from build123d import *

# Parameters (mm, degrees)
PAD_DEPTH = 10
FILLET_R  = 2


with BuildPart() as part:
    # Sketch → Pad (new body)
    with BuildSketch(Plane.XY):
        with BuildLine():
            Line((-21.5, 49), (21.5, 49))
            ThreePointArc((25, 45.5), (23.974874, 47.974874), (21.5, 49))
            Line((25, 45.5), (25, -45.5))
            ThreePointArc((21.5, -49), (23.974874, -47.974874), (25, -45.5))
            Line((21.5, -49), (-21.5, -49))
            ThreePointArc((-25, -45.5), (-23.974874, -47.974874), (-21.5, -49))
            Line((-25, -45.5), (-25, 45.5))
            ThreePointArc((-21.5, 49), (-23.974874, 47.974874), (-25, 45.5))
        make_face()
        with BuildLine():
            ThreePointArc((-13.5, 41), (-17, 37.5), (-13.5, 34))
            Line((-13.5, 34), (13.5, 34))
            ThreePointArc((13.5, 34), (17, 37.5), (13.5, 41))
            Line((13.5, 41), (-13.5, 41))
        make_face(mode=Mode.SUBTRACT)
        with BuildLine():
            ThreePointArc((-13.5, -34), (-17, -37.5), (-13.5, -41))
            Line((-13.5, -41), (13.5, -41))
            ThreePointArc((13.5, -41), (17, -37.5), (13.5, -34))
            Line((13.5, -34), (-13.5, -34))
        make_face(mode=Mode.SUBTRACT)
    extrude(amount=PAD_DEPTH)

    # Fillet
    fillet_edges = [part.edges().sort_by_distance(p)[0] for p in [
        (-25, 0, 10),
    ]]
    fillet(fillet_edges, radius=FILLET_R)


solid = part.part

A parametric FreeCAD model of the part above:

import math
import FreeCAD as App
import Part
import Sketcher
from FreeCAD import Vector
Q = App.Units.Quantity


def edges_at(feature, points):
    """Names of the edges that pass closest to the given points."""
    edges = feature.Shape.Edges
    near = lambda p: min(range(len(edges)), key=lambda i: edges[i].distToShape(Part.Vertex(*p))[0])
    return sorted({f"Edge{near(p) + 1}" for p in points})

doc = App.newDocument("Part")
body = doc.addObject("PartDesign::Body", "Body")

sketch1 = body.newObject("Sketcher::SketchObject", "Sketch")
sketch1.AttachmentSupport = (doc.getObject("XY_Plane"), [""])
sketch1.MapMode = "FlatFace"
sketch1.addGeometry(Part.LineSegment(Vector(21.5, 49, 0), Vector(-21.5, 49, 0)), False)
sketch1.addGeometry(Part.ArcOfCircle(Part.Circle(Vector(-21.5, 45.5, 0), Vector(0, 0, 1), 3.5), math.radians(90), math.radians(180)), False)
sketch1.addGeometry(Part.LineSegment(Vector(-25, 45.5, 0), Vector(-25, -45.5, 0)), False)
sketch1.addGeometry(Part.ArcOfCircle(Part.Circle(Vector(-21.5, -45.5, 0), Vector(0, 0, 1), 3.5), math.radians(180), math.radians(270)), False)
sketch1.addGeometry(Part.LineSegment(Vector(-21.5, -49, 0), Vector(21.5, -49, 0)), False)
sketch1.addGeometry(Part.ArcOfCircle(Part.Circle(Vector(21.5, -45.5, 0), Vector(0, 0, 1), 3.5), math.radians(-90), math.radians(0)), False)
sketch1.addGeometry(Part.LineSegment(Vector(25, -45.5, 0), Vector(25, 45.5, 0)), False)
sketch1.addGeometry(Part.ArcOfCircle(Part.Circle(Vector(21.5, 45.5, 0), Vector(0, 0, 1), 3.5), math.radians(0), math.radians(90)), False)
sketch1.addGeometry(Part.LineSegment(Vector(-13.5, -34, 0), Vector(13.5, -34, 0)), False)
sketch1.addGeometry(Part.ArcOfCircle(Part.Circle(Vector(13.5, -37.5, 0), Vector(0, 0, 1), 3.5), math.radians(-90), math.radians(90)), False)
sketch1.addGeometry(Part.LineSegment(Vector(13.5, -41, 0), Vector(-13.5, -41, 0)), False)
sketch1.addGeometry(Part.ArcOfCircle(Part.Circle(Vector(-13.5, -37.5, 0), Vector(0, 0, 1), 3.5), math.radians(90), math.radians(270)), False)
sketch1.addGeometry(Part.LineSegment(Vector(-13.5, 41, 0), Vector(13.5, 41, 0)), False)
sketch1.addGeometry(Part.ArcOfCircle(Part.Circle(Vector(13.5, 37.5, 0), Vector(0, 0, 1), 3.5), math.radians(-90), math.radians(90)), False)
sketch1.addGeometry(Part.LineSegment(Vector(13.5, 34, 0), Vector(-13.5, 34, 0)), False)
sketch1.addGeometry(Part.ArcOfCircle(Part.Circle(Vector(-13.5, 37.5, 0), Vector(0, 0, 1), 3.5), math.radians(90), math.radians(270)), False)
sketch1.addConstraint(Sketcher.Constraint("Tangent", 0, 2, 1, 1))
sketch1.addConstraint(Sketcher.Constraint("Tangent", 1, 2, 2, 1))
sketch1.addConstraint(Sketcher.Constraint("Tangent", 2, 2, 3, 1))
sketch1.addConstraint(Sketcher.Constraint("Tangent", 3, 2, 4, 1))
sketch1.addConstraint(Sketcher.Constraint("Tangent", 4, 2, 5, 1))
sketch1.addConstraint(Sketcher.Constraint("Tangent", 5, 2, 6, 1))
sketch1.addConstraint(Sketcher.Constraint("Tangent", 6, 2, 7, 1))
sketch1.addConstraint(Sketcher.Constraint("Tangent", 7, 2, 0, 1))
sketch1.addConstraint(Sketcher.Constraint("Tangent", 8, 2, 9, 2))
sketch1.addConstraint(Sketcher.Constraint("Tangent", 9, 1, 10, 1))
sketch1.addConstraint(Sketcher.Constraint("Tangent", 10, 2, 11, 2))
sketch1.addConstraint(Sketcher.Constraint("Tangent", 11, 1, 8, 1))
sketch1.addConstraint(Sketcher.Constraint("Tangent", 12, 2, 13, 2))
sketch1.addConstraint(Sketcher.Constraint("Tangent", 13, 1, 14, 1))
sketch1.addConstraint(Sketcher.Constraint("Tangent", 14, 2, 15, 2))
sketch1.addConstraint(Sketcher.Constraint("Tangent", 15, 1, 12, 1))
sketch1.addConstraint(Sketcher.Constraint("Horizontal", 0))
sketch1.addConstraint(Sketcher.Constraint("Vertical", 2))
sketch1.addConstraint(Sketcher.Constraint("Horizontal", 4))
sketch1.addConstraint(Sketcher.Constraint("Vertical", 6))
sketch1.addConstraint(Sketcher.Constraint("Horizontal", 8))
sketch1.addConstraint(Sketcher.Constraint("Horizontal", 10))
sketch1.addConstraint(Sketcher.Constraint("Horizontal", 12))
sketch1.addConstraint(Sketcher.Constraint("Horizontal", 14))
sketch1.addConstraint(Sketcher.Constraint("Equal", 1, 3))
sketch1.addConstraint(Sketcher.Constraint("Equal", 3, 5))
sketch1.addConstraint(Sketcher.Constraint("Equal", 5, 7))
sketch1.addConstraint(Sketcher.Constraint("Equal", 7, 9))
sketch1.addConstraint(Sketcher.Constraint("Equal", 11, 13))
sketch1.addConstraint(Sketcher.Constraint("Symmetric", 1, 3, 5, 3, -1, 1))
sketch1.addConstraint(Sketcher.Constraint("Symmetric", 11, 3, 13, 3, -1, 1))
sketch1.addConstraint(Sketcher.Constraint("Vertical", 9, 3, 13, 3))
sketch1.addConstraint(Sketcher.Constraint("Vertical", 11, 3, 15, 3))
sketch1.addConstraint(Sketcher.Constraint("Radius", 1, Q("3.499999 mm")))
sketch1.addConstraint(Sketcher.Constraint("DistanceX", 0, 2, 0, 1, Q("43 mm")))
sketch1.addConstraint(Sketcher.Constraint("DistanceX", 8, 1, 8, 2, Q("27 mm")))
sketch1.addConstraint(Sketcher.Constraint("DistanceY", 2, 2, 2, 1, Q("91 mm")))
sketch1.addConstraint(Sketcher.Constraint("DistanceY", 8, 2, -1, 1, Q("34 mm")))
pad1 = body.newObject("PartDesign::Pad", "Pad")
pad1.Profile = sketch1
pad1.Length = 10
doc.recompute()

fillet = body.newObject("PartDesign::Fillet", "Fillet")
fillet.Base = (pad1, edges_at(pad1, [(-25, 0, 10)]))
fillet.Radius = 2

doc.recompute()
